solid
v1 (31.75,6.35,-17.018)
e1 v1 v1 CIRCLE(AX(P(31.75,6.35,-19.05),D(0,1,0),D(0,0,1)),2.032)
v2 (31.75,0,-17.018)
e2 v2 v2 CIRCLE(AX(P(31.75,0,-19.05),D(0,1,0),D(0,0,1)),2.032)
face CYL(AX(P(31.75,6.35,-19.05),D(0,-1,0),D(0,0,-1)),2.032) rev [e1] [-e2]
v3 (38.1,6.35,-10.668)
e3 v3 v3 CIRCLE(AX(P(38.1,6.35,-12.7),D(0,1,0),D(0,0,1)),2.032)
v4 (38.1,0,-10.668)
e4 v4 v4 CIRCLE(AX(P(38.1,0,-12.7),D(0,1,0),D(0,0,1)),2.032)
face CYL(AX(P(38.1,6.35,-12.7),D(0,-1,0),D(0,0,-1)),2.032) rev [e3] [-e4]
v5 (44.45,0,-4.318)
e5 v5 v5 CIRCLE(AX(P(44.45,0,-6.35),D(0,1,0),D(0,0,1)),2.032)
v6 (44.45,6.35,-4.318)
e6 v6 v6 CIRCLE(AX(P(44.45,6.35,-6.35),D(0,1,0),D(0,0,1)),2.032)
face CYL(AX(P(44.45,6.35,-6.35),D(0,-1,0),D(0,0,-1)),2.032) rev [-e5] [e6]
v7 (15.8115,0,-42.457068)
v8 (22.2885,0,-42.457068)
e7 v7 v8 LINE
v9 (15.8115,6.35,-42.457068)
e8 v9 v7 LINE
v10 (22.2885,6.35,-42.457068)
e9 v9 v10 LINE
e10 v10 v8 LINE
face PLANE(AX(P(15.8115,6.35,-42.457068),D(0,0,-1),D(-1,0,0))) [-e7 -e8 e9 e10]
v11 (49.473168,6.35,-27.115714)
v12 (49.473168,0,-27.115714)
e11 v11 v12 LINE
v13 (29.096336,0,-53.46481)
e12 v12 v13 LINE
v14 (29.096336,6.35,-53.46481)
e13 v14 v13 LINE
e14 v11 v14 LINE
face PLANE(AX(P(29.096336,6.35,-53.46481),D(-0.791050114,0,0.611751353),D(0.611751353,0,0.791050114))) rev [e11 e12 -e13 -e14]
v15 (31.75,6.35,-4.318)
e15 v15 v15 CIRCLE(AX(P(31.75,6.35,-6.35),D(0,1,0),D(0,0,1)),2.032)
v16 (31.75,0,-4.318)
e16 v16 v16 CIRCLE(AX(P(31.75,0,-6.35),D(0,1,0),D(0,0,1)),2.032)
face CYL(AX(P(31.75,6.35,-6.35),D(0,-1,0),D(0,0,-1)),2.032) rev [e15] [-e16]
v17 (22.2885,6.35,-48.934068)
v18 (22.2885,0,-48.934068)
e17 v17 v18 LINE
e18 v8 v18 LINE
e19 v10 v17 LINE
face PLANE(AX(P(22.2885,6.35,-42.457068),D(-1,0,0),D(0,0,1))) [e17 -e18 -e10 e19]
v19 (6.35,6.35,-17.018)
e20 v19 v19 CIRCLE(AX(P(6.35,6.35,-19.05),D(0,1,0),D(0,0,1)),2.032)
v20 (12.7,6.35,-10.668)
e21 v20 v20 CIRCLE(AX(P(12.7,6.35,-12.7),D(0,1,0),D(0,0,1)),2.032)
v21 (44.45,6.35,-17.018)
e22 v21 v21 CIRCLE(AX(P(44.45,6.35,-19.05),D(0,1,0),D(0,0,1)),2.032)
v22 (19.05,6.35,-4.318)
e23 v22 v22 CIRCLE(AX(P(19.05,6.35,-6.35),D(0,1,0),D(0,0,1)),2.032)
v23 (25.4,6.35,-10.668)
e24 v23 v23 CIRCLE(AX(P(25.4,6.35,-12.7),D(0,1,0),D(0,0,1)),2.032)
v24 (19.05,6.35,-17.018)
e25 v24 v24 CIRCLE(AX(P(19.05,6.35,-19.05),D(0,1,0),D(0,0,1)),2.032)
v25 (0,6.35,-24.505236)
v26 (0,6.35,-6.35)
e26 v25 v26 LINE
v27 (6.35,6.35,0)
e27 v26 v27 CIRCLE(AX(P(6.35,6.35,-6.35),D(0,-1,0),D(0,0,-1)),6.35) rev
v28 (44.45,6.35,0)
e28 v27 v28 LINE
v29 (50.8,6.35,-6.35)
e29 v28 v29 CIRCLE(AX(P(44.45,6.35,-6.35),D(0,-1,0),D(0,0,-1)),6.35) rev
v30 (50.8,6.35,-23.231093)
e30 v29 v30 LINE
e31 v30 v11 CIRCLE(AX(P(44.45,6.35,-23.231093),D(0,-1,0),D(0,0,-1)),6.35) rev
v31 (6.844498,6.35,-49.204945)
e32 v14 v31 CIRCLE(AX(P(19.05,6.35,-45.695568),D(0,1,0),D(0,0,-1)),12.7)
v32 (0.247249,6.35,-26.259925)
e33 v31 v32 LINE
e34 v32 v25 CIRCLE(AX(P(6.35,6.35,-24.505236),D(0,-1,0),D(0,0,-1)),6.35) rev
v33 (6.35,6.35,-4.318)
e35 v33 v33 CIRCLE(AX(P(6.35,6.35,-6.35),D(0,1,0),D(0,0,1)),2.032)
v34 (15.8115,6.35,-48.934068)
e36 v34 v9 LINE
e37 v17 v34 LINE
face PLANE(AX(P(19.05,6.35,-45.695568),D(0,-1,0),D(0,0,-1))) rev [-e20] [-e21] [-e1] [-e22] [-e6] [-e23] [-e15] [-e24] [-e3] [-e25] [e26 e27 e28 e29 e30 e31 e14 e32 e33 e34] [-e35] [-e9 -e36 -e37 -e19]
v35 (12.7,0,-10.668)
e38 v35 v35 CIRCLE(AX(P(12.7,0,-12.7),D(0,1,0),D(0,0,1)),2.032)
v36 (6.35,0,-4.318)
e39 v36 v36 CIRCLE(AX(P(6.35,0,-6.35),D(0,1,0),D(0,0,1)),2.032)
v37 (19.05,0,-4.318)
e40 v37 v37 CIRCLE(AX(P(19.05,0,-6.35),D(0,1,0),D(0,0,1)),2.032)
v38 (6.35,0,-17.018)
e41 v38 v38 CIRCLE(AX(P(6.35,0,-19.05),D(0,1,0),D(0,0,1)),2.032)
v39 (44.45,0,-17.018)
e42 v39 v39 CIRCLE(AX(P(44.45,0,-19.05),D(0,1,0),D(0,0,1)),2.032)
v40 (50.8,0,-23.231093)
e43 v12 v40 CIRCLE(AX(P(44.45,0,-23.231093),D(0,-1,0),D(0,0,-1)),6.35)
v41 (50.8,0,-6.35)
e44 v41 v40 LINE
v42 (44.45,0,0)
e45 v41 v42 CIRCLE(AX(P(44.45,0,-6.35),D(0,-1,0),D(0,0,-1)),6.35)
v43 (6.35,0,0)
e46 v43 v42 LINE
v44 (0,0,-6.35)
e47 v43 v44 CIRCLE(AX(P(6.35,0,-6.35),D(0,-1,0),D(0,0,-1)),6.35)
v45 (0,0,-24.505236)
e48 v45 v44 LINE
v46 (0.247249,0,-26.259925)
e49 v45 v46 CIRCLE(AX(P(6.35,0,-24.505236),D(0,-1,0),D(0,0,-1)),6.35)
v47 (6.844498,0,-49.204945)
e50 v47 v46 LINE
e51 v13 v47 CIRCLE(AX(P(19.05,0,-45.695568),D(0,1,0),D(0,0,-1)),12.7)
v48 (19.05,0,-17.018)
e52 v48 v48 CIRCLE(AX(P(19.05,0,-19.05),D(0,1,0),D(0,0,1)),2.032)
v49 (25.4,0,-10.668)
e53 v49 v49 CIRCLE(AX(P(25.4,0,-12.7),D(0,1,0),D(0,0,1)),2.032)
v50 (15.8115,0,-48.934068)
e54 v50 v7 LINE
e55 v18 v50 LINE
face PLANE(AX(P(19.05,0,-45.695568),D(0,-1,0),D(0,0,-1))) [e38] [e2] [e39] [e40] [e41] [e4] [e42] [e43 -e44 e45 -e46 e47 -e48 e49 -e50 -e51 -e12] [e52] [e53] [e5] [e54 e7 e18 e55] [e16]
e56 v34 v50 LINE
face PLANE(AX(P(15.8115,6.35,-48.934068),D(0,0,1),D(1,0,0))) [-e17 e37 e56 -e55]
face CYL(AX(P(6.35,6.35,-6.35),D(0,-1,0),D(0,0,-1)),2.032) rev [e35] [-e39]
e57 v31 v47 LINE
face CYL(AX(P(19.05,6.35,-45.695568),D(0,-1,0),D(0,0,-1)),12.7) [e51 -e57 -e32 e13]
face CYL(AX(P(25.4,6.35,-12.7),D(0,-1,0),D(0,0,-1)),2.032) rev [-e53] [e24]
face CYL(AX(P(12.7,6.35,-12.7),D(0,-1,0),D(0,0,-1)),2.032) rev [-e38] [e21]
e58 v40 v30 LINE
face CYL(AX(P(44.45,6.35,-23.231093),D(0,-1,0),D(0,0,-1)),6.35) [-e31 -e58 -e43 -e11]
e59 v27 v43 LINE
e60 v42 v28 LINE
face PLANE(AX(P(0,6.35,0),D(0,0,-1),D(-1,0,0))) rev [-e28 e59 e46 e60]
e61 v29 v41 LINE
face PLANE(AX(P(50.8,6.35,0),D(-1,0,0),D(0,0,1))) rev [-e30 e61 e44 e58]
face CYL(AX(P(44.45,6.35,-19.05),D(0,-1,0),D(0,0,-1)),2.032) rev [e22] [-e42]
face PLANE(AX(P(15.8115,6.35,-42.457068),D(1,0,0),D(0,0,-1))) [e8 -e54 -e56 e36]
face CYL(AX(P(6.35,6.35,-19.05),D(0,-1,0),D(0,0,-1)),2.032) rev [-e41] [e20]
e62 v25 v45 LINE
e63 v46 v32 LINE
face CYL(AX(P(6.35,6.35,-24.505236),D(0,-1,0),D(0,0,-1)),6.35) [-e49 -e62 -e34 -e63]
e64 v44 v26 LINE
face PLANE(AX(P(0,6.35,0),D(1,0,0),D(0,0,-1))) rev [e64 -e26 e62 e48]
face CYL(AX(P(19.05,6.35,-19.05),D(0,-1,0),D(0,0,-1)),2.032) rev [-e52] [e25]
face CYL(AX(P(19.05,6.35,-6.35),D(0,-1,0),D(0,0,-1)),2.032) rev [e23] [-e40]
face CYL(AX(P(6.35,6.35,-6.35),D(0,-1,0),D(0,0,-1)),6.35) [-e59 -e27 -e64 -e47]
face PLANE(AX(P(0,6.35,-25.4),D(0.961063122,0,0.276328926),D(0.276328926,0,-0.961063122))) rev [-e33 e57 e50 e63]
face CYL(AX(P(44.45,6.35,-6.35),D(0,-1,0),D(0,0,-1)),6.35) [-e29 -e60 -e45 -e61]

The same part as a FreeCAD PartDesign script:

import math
import FreeCAD as App
import Part
import Sketcher

V = App.Vector
Q = App.Units.Quantity


def edges_at(feature, points):
    """Names of the edges that pass closest to the given points."""
    edges = feature.Shape.Edges
    near = lambda p: min(range(len(edges)), key=lambda i: edges[i].distToShape(Part.Vertex(*p))[0])
    return sorted({f"Edge{near(p) + 1}" for p in points})


def add_polygon(sketch, points):
    """Adds a closed chain of lines whose ends are joined by coincident constraints."""
    first, n = sketch.GeometryCount, len(points)
    for a, b in zip(points, points[1:] + points[:1]):
        sketch.addGeometry(Part.LineSegment(App.Vector(*a, 0), App.Vector(*b, 0)), False)
    for i in range(n):
        sketch.addConstraint(Sketcher.Constraint("Coincident", first + i, 2, first + (i + 1) % n, 1))

doc = App.newDocument("Part")
body = doc.addObject("PartDesign::Body", "Body")

# Sketch on XZ plane
sketch1 = body.newObject("Sketcher::SketchObject", "Sketch")
sketch1.AttachmentSupport = (doc.getObject("XZ_Plane"), [""])
sketch1.MapMode = "FlatFace"
sketch1.addGeometry(Part.LineSegment(V(6.844498, -49.204945, 0), V(0, -25.4, 0)), False)  # 0
sketch1.addGeometry(Part.LineSegment(V(0, -25.4, 0), V(0, 0, 0)), False)  # 1
sketch1.addGeometry(Part.LineSegment(V(0, 0, 0), V(50.8, 0, 0)), False)  # 2
sketch1.addGeometry(Part.LineSegment(V(50.8, 0, 0), V(50.8, -25.4, 0)), False)  # 3
sketch1.addGeometry(Part.LineSegment(V(50.8, -25.4, 0), V(29.096336, -53.46481, 0)), False)  # 4
sketch1.addGeometry(Part.ArcOfCircle(Part.Circle(V(19.05, -45.695568, 0), V(0, 0, 1), 12.7), math.radians(-163.958775), math.radians(-37.716245)), False)  # 5
sketch1.addGeometry(Part.Circle(V(44.45, -6.35, 0), V(0, 0, 1), 2.032), False)  # 6
sketch1.addGeometry(Part.Circle(V(38.1, -12.7, 0), V(0, 0, 1), 2.032), False)  # 7
sketch1.addGeometry(Part.Circle(V(31.75, -6.35, 0), V(0, 0, 1), 2.032), False)  # 8
sketch1.addGeometry(Part.Circle(V(44.45, -19.05, 0), V(0, 0, 1), 2.032), False)  # 9
sketch1.addGeometry(Part.Circle(V(31.75, -19.05, 0), V(0, 0, 1), 2.032), False)  # 10
sketch1.addGeometry(Part.Circle(V(19.05, -6.35, 0), V(0, 0, 1), 2.032), False)  # 11
sketch1.addGeometry(Part.Circle(V(25.4, -12.7, 0), V(0, 0, 1), 2.032), False)  # 12
sketch1.addGeometry(Part.Circle(V(6.35, -6.35, 0), V(0, 0, 1), 2.032), False)  # 13
sketch1.addGeometry(Part.Circle(V(12.7, -12.7, 0), V(0, 0, 1), 2.032), False)  # 14
sketch1.addGeometry(Part.Circle(V(19.05, -19.05, 0), V(0, 0, 1), 2.032), False)  # 15
sketch1.addGeometry(Part.Circle(V(6.35, -19.05, 0), V(0, 0, 1), 2.032), False)  # 16
add_polygon(sketch1, [(15.8115, -42.457068), (15.8115, -48.934068), (22.2885, -48.934068), (22.2885, -42.457068)])  # lines 17-20
sketch1.addConstraint([
    Sketcher.Constraint("Coincident", 0, 2, 1, 1),
    Sketcher.Constraint("Coincident", 1, 2, 2, 1),
    Sketcher.Constraint("Coincident", 2, 2, 3, 1),
    Sketcher.Constraint("Coincident", 3, 2, 4, 1),
    Sketcher.Constraint("Tangent", 4, 2, 5, 2),
    Sketcher.Constraint("Tangent", 5, 1, 0, 1),
    Sketcher.Constraint("Vertical", 1),
    Sketcher.Constraint("Horizontal", 2),
    Sketcher.Constraint("Vertical", 3),
    Sketcher.Constraint("Vertical", 17),
    Sketcher.Constraint("Horizontal", 18),
    Sketcher.Constraint("Vertical", 19),
    Sketcher.Constraint("Horizontal", 20),
    Sketcher.Constraint("Coincident", 1, 2, -1, 1),
    Sketcher.Constraint("Equal", 6, 7),
    Sketcher.Constraint("Equal", 7, 8),
    Sketcher.Constraint("Equal", 8, 9),
    Sketcher.Constraint("Equal", 9, 10),
    Sketcher.Constraint("Equal", 10, 11),
    Sketcher.Constraint("Equal", 11, 12),
    Sketcher.Constraint("Equal", 12, 13),
    Sketcher.Constraint("Equal", 13, 14),
    Sketcher.Constraint("Equal", 14, 15),
    Sketcher.Constraint("Equal", 15, 16),
    Sketcher.Constraint("Horizontal", 6, 3, 8, 3),
    Sketcher.Constraint("Horizontal", 9, 3, 10, 3),
    Sketcher.Constraint("Horizontal", 8, 3, 11, 3),
    Sketcher.Constraint("Horizontal", 7, 3, 12, 3),
    Sketcher.Constraint("Horizontal", 11, 3, 13, 3),
    Sketcher.Constraint("Horizontal", 12, 3, 14, 3),
    Sketcher.Constraint("Horizontal", 10, 3, 15, 3),
    Sketcher.Constraint("Horizontal", 15, 3, 16, 3),
    Sketcher.Constraint("Horizontal", 0, 2, 3, 2),
    Sketcher.Constraint("Vertical", 6, 3, 9, 3),
    Sketcher.Constraint("Vertical", 8, 3, 10, 3),
    Sketcher.Constraint("Vertical", 5, 3, 11, 3),
    Sketcher.Constraint("Vertical", 11, 3, 15, 3),
    Sketcher.Constraint("Vertical", 13, 3, 16, 3),
    Sketcher.Constraint("Equal", 20, 17),
    Sketcher.Constraint("Radius", 5, Q("0.5 in")),
    Sketcher.Constraint("Diameter", 6, Q("0.16 in")),
    Sketcher.Constraint("DistanceX", 2, 1, 2, 2, Q("2 in")),
    Sketcher.Constraint("DistanceY", 1, 1, 1, 2, Q("1 in")),
    Sketcher.Constraint("DistanceX", -1, 1, 12, 3, Q("1 in")),
    Sketcher.Constraint("DistanceX", 5, 3, 6, 3, Q("1 in")),
    Sketcher.Constraint("DistanceX", 13, 3, 8, 3, Q("1 in")),
    Sketcher.Constraint("DistanceX", -1, 1, 7, 3, Q("1.5 in")),
    Sketcher.Constraint("DistanceY", 7, 3, -1, 1, Q("0.5 in")),
    Sketcher.Constraint("DistanceX", -1, 1, 14, 3, Q("0.5 in")),
    Sketcher.Constraint("DistanceX", 8, 3, 6, 3, Q("0.5 in")),
    Sketcher.Constraint("DistanceY", 9, 3, 6, 3, Q("0.5 in")),
    Sketcher.Constraint("DistanceX", 18, 1, 18, 2, Q("0.255 in")),
    Sketcher.Constraint("DistanceX", -1, 1, 5, 3, Q("0.75 in")),
    Sketcher.Constraint("DistanceY", 6, 3, -1, 1, Q("0.25 in")),
    Sketcher.Constraint("DistanceX", -1, 1, 17, 2, Q("0.6225 in")),
    Sketcher.Constraint("DistanceY", 17, 2, 5, 3, Q("0.1275 in")),
    Sketcher.Constraint("DistanceX", -1, 1, 5, 1, 6.844498),
])
pad1 = body.newObject("PartDesign::Pad", "Pad")
pad1.Profile = sketch1
pad1.Length = Q("0.25 in")
pad1.Reversed = True
doc.recompute()

fillet = body.newObject("PartDesign::Fillet", "Fillet")
fillet.Base = (pad1, edges_at(pad1, [
    (0, 3.175, -25.4),
    (50.8, 3.175, -25.4),
    (50.8, 3.175, 0),
    (0, 3.175, 0),
]))
fillet.Radius = Q("0.25 in")

doc.recompute()
